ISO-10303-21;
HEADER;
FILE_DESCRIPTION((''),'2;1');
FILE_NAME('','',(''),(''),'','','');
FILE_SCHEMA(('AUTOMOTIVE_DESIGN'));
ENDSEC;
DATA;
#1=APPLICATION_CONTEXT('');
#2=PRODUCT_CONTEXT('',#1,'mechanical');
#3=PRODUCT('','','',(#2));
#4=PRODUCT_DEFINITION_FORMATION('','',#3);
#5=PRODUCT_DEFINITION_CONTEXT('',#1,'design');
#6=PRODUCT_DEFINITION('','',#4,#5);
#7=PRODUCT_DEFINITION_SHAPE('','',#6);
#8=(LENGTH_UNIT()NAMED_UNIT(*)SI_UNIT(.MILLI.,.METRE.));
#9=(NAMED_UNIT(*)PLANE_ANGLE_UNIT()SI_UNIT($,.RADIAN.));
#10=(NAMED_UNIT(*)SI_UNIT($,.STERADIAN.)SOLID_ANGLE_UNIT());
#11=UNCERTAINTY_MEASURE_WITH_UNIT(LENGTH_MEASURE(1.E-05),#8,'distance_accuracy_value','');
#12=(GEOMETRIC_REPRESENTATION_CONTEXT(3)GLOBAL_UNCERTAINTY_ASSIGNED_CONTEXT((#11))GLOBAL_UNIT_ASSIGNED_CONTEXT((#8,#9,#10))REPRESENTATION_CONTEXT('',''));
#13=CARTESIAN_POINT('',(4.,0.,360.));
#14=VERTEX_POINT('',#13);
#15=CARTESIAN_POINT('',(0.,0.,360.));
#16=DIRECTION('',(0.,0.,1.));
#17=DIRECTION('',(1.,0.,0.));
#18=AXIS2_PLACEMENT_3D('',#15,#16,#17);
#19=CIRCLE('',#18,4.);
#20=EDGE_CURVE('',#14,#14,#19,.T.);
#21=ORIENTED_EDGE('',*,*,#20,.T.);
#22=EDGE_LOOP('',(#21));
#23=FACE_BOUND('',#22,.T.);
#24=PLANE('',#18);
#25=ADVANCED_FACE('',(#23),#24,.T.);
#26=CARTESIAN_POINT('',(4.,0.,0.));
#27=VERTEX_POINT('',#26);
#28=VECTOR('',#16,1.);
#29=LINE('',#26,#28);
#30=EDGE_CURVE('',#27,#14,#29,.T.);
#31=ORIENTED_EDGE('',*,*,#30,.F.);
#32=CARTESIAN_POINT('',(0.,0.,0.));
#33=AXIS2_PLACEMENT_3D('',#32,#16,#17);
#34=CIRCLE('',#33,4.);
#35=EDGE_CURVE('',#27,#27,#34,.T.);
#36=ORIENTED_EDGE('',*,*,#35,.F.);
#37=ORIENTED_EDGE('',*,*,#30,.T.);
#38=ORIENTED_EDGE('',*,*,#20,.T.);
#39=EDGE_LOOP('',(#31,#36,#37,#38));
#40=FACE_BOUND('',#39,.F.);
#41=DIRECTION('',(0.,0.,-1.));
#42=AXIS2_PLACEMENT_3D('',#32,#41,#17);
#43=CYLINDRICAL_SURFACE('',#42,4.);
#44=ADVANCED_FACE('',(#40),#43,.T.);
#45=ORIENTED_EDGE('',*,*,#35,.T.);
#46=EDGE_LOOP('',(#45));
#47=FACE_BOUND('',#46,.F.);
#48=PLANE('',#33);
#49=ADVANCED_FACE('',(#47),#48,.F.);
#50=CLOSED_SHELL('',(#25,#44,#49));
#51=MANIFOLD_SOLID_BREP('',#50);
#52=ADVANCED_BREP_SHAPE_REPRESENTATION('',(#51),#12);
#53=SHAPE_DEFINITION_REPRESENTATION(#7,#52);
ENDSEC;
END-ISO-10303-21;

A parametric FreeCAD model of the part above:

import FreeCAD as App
import Part
import Sketcher

doc = App.newDocument("Part")
body = doc.addObject("PartDesign::Body", "Body")

sketch1 = doc.addObject("Sketcher::SketchObject", "Sketch")
body.addObject(sketch1)
sketch1.AttachmentSupport = (doc.XY_Plane, [""])
sketch1.MapMode = "FlatFace"
sketch1.addGeometry(Part.Circle(App.Vector(0, 0, 0), App.Vector(0, 0, 1), 4), False)
sketch1.addConstraint([
    Sketcher.Constraint("Coincident", 0, 3, -1, 1),
    Sketcher.Constraint("Diameter", 0, 8.0),
])
pad1 = doc.addObject("PartDesign::Pad", "Pad")
body.addObject(pad1)
pad1.Profile = sketch1
pad1.Length = 360

doc.recompute()
